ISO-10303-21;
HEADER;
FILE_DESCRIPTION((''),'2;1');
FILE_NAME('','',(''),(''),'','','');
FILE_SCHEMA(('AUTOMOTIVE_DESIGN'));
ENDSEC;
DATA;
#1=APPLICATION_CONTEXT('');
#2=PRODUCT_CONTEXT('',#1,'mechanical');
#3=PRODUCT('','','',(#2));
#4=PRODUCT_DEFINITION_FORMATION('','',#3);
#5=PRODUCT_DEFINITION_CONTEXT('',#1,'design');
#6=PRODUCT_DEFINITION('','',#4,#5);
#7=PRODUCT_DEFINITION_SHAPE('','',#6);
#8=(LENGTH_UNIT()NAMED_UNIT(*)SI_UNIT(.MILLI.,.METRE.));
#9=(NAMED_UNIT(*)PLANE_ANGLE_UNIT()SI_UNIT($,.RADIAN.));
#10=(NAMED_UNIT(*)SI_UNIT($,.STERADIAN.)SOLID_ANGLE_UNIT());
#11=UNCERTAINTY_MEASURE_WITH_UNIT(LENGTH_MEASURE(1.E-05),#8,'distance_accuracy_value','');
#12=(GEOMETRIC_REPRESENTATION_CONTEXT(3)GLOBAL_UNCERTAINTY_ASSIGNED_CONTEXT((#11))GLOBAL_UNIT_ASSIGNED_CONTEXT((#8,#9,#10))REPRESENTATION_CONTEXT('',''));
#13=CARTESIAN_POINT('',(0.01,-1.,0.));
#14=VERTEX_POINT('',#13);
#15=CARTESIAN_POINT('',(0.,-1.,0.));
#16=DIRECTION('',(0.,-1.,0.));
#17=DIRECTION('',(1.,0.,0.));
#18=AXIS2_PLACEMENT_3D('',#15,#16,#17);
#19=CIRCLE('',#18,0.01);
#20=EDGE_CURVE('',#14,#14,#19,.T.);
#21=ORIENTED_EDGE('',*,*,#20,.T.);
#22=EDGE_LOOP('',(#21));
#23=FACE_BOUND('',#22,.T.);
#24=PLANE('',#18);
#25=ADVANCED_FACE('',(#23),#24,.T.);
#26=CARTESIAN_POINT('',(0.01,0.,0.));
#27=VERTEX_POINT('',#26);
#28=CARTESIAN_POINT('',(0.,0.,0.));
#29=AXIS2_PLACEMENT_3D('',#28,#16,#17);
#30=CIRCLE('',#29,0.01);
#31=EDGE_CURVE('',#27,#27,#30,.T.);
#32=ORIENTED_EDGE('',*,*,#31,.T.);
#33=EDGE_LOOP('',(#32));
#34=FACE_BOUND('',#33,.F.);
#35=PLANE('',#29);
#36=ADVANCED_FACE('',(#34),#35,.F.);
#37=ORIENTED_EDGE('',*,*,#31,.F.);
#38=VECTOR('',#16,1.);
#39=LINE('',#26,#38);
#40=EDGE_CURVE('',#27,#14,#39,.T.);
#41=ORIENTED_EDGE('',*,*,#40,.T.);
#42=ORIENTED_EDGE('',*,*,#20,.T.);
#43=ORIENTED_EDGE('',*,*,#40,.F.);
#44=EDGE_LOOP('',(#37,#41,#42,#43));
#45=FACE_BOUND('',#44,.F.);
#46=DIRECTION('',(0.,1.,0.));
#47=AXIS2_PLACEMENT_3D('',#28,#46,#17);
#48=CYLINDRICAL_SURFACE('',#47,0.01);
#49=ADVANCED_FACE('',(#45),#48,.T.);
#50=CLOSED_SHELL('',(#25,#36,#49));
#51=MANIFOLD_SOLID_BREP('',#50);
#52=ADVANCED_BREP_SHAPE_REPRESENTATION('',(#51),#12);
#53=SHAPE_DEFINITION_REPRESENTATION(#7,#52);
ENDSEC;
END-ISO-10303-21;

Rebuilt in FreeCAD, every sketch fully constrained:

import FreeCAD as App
import Part
import Sketcher

doc = App.newDocument("Part")
params = doc.addObject("Spreadsheet::Sheet", "Params")
for row, (alias, value) in enumerate([
    ("sketch1_diameter", "0.02 mm"),
    ("pad1_length", "1 mm"),
], start=1):
    params.set(f"A{row}", alias)
    params.set(f"B{row}", "=" + value)
    params.setAlias(f"B{row}", alias)

body = doc.addObject("PartDesign::Body", "Body")

# Sketch on XY plane
sketch1 = body.newObject("Sketcher::SketchObject", "Sketch")
sketch1.AttachmentSupport = (doc.getObject("XY_Plane"), [""])
sketch1.MapMode = "FlatFace"
sketch1.addGeometry(Part.Circle(App.Vector(0, 0, 0), App.Vector(0, 0, 1), 0.01), False)
sketch1.addConstraint(Sketcher.Constraint("Coincident", 0, 3, -1, 1))
sketch1.addConstraint(Sketcher.Constraint("Diameter", 0, 0.02))
sketch1.setExpression("Constraints[1]", "Params.sketch1_diameter")
pad1 = body.newObject("PartDesign::Pad", "Pad")
pad1.Profile = sketch1
pad1.setExpression("Length", "Params.pad1_length")
body2 = doc.addObject("PartDesign::Body", "Body001")
doc.recompute()

body.Placement = App.Placement(App.Vector(0, 0, 0), App.Rotation(App.Vector(1, 0, 0), 90))
boolean = body2.newObject("PartDesign::Boolean", "Boolean")
boolean.Type = "Fuse"
boolean.addObjects([body])

doc.recompute()
